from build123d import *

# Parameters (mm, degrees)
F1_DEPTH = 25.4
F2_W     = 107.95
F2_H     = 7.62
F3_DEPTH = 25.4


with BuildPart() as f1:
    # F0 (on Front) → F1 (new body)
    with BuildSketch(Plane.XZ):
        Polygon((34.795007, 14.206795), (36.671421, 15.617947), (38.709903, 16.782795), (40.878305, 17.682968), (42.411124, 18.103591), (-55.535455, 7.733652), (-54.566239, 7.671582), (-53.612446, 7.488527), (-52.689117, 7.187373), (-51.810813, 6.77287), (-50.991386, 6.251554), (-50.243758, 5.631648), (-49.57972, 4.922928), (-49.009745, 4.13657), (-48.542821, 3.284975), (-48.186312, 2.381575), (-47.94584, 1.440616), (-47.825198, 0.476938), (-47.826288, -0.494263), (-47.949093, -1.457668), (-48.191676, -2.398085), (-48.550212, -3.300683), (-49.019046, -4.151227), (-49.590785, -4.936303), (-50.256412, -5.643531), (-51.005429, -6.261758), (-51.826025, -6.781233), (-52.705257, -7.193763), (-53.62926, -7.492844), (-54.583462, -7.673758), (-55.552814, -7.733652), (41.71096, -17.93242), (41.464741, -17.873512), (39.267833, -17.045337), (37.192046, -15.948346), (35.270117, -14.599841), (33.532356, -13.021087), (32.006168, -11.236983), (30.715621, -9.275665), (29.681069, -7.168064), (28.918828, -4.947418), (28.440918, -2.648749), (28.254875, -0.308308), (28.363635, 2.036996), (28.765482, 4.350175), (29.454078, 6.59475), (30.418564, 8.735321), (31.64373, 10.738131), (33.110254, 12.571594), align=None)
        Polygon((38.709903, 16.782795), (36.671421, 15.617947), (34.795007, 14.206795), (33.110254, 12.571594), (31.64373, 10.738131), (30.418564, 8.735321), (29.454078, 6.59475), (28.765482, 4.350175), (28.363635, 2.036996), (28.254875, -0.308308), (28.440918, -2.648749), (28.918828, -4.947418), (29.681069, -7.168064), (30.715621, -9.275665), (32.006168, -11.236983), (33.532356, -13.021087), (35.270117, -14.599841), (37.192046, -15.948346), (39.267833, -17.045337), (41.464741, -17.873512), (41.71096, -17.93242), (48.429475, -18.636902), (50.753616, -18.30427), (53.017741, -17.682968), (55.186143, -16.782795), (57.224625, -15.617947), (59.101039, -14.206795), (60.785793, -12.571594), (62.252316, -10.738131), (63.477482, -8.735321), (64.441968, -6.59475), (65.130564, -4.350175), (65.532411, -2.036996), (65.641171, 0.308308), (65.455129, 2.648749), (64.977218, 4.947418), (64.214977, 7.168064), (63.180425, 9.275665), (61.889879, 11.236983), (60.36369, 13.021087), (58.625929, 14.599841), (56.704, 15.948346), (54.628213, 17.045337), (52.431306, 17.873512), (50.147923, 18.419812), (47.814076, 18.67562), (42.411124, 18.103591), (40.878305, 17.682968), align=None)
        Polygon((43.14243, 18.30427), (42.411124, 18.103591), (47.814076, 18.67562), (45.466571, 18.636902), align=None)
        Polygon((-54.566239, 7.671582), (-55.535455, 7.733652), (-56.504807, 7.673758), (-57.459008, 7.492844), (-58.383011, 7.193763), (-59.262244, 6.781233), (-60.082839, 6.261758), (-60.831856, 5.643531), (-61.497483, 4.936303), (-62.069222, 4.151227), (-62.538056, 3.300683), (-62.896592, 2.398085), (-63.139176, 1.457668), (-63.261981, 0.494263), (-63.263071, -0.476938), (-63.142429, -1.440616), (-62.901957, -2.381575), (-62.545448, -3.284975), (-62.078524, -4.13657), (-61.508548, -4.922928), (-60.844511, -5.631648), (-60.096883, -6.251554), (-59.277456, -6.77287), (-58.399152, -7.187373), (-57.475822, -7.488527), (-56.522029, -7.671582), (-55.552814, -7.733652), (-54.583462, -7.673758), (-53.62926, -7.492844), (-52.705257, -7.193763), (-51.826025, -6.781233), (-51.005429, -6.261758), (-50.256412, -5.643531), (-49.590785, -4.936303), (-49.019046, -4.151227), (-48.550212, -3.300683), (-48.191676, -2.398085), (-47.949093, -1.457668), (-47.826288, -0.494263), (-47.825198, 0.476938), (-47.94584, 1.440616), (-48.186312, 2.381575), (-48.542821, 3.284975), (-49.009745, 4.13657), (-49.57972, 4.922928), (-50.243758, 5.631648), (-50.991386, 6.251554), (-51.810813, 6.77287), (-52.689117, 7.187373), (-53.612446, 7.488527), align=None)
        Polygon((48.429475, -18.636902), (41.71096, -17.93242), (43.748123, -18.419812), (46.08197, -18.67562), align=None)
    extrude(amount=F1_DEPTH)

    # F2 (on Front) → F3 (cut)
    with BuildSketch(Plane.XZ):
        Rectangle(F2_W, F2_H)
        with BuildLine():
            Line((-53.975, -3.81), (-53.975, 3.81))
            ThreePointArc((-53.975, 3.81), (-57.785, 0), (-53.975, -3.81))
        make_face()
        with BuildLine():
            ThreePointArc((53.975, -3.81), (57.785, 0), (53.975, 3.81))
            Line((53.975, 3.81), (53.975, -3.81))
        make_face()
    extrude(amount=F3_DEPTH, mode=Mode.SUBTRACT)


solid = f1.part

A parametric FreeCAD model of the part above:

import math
import FreeCAD as App
import Part
import Sketcher
from FreeCAD import Vector
Q = App.Units.Quantity


def add_polygon(sketch, points):
    """Adds a closed chain of lines whose ends are joined by coincident constraints."""
    first, n = sketch.GeometryCount, len(points)
    for a, b in zip(points, points[1:] + points[:1]):
        sketch.addGeometry(Part.LineSegment(App.Vector(*a, 0), App.Vector(*b, 0)), False)
    for i in range(n):
        sketch.addConstraint(Sketcher.Constraint("Coincident", first + i, 2, first + (i + 1) % n, 1))

doc = App.newDocument("Part")
params = doc.addObject("Spreadsheet::Sheet", "Params")
for row, (alias, value) in enumerate([
    ("pad1_length", "1 in"),
    ("sketch2_radius", "0.15 in"),
    ("sketch2_width", "4.25 in"),
    ("pocket1_length", "1 in"),
], start=1):
    params.set(f"A{row}", alias)
    params.set(f"B{row}", "=" + value)
    params.setAlias(f"B{row}", alias)

body = doc.addObject("PartDesign::Body", "Body")

# Sketch on XZ plane
sketch1 = body.newObject("Sketcher::SketchObject", "Sketch")
sketch1.AttachmentSupport = (doc.getObject("XZ_Plane"), [""])
sketch1.MapMode = "FlatFace"
add_polygon(sketch1, [(42.411124, 18.103591), (-55.535455, 7.733652), (-56.504807, 7.673758), (-57.459008, 7.492844), (-58.383011, 7.193763), (-59.262244, 6.781233), (-60.082839, 6.261758), (-60.831856, 5.643531), (-61.497483, 4.936303), (-62.069222, 4.151227), (-62.538056, 3.300683), (-62.896592, 2.398085), (-63.139176, 1.457668), (-63.261981, 0.494263), (-63.263071, -0.476938), (-63.142429, -1.440616), (-62.901957, -2.381575), (-62.545448, -3.284975), (-62.078524, -4.13657), (-61.508548, -4.922928), (-60.844511, -5.631648), (-60.096883, -6.251554), (-59.277456, -6.77287), (-58.399152, -7.187373), (-57.475822, -7.488527), (-56.522029, -7.671582), (-55.552814, -7.733652), (41.71096, -17.93242), (43.748123, -18.419812), (46.08197, -18.67562), (48.429475, -18.636902), (50.753616, -18.30427), (53.017741, -17.682968), (55.186143, -16.782795), (57.224625, -15.617947), (59.101039, -14.206795), (60.785793, -12.571594), (62.252316, -10.738131), (63.477482, -8.735321), (64.441968, -6.59475), (65.130564, -4.350175), (65.532411, -2.036996), (65.641171, 0.308308), (65.455129, 2.648749), (64.977218, 4.947418), (64.214977, 7.168064), (63.180425, 9.275665), (61.889879, 11.236983), (60.36369, 13.021087), (58.625929, 14.599841), (56.704, 15.948346), (54.628213, 17.045337), (52.431306, 17.873512), (50.147923, 18.419812), (47.814076, 18.67562), (45.466571, 18.636902), (43.14243, 18.30427)])  # lines 0-56
sketch1.addConstraint([
    Sketcher.Constraint("DistanceX", 16, 2, 20, 2, Q("0.0964002 in")),
    Sketcher.Constraint("DistanceY", 31, 2, 33, 2, Q("0.0813 in")),
    Sketcher.Constraint("DistanceX", 31, 2, 34, 2, Q("0.2394999 in")),
    Sketcher.Constraint("Distance", 0, Q("98.494 mm")),
    Sketcher.Constraint("Distance", 1, Q("0.971201 mm")),
    Sketcher.Constraint("Distance", 2, Q("0.9712 mm")),
    Sketcher.Constraint("Distance", 3, Q("0.971201 mm")),
    Sketcher.Constraint("Distance", 4, Q("0.971201 mm")),
    Sketcher.Constraint("Distance", 5, Q("0.971201 mm")),
    Sketcher.Constraint("Distance", 6, Q("0.971201 mm")),
    Sketcher.Constraint("Distance", 7, Q("0.971201 mm")),
    Sketcher.Constraint("Distance", 8, Q("0.9712 mm")),
    Sketcher.Constraint("Distance", 9, Q("0.971201 mm")),
    Sketcher.Constraint("Distance", 10, Q("0.971201 mm")),
    Sketcher.Constraint("Distance", 11, Q("0.971201 mm")),
    Sketcher.Constraint("Distance", 12, Q("0.9712 mm")),
    Sketcher.Constraint("Distance", 13, Q("0.971202 mm")),
    Sketcher.Constraint("Distance", 14, Q("0.9712 mm")),
    Sketcher.Constraint("Distance", 15, Q("0.971201 mm")),
    Sketcher.Constraint("Distance", 16, Q("0.9712 mm")),
    Sketcher.Constraint("Distance", 17, Q("0.971201 mm")),
    Sketcher.Constraint("Distance", 18, Q("0.971201 mm")),
    Sketcher.Constraint("Distance", 19, Q("0.9712 mm")),
    Sketcher.Constraint("Distance", 20, Q("0.971201 mm")),
    Sketcher.Constraint("Distance", 21, Q("0.971201 mm")),
    Sketcher.Constraint("Distance", 22, Q("0.971201 mm")),
    Sketcher.Constraint("Distance", 23, Q("0.971201 mm")),
    Sketcher.Constraint("Distance", 24, Q("0.9712 mm")),
    Sketcher.Constraint("Distance", 25, Q("0.9712 mm")),
    Sketcher.Constraint("DistanceY", 29, 2, -1, 1, Q("18.636902 mm")),
    Sketcher.Constraint("DistanceX", -1, 1, 49, 2, Q("56.704 mm")),
    Sketcher.Constraint("DistanceY", -1, 1, 54, 2, Q("18.636902 mm")),
    Sketcher.Constraint("DistanceX", 2, 2, 1, 2, Q("0.954201 mm")),
    Sketcher.Constraint("DistanceY", 5, 2, 1, 2, Q("1.412 mm")),
    Sketcher.Constraint("DistanceX", 9, 2, 6, 2, Q("1.7062 mm")),
    Sketcher.Constraint("DistanceY", 14, 2, 10, 2, Q("3.838701 mm")),
    Sketcher.Constraint("DistanceY", 14, 2, 9, 2, Q("4.741299 mm")),
    Sketcher.Constraint("DistanceY", 16, 2, 15, 2, Q("0.9034 mm")),
    Sketcher.Constraint("DistanceX", 16, 2, 18, 2, Q("1.0369 mm")),
    Sketcher.Constraint("DistanceY", 21, 2, 17, 2, Q("2.6363 mm")),
    Sketcher.Constraint("DistanceY", 23, 2, 18, 2, Q("2.565599 mm")),
    Sketcher.Constraint("DistanceY", 25, 2, 20, 2, Q("1.482098 mm")),
    Sketcher.Constraint("DistanceY", 28, 2, 26, 2, Q("0.7432 mm")),
    Sketcher.Constraint("DistanceX", 24, 2, 28, 2, Q("102.603999 mm")),
    Sketcher.Constraint("DistanceY", 32, 2, 34, 2, Q("2.576 mm")),
    Sketcher.Constraint("DistanceY", 34, 2, 35, 2, Q("1.635201 mm")),
    Sketcher.Constraint("DistanceY", 38, 2, 42, 2, Q("9.243499 mm")),
    Sketcher.Constraint("DistanceY", 44, 2, 45, 2, Q("2.107601 mm")),
    Sketcher.Constraint("DistanceX", 46, 2, 44, 2, Q("2.325098 mm")),
    Sketcher.Constraint("DistanceY", 51, 2, 52, 2, Q("0.5463 mm")),
    Sketcher.Constraint("DistanceX", 56, 2, 52, 2, Q("7.736799 mm")),
    Sketcher.Constraint("Distance", 56, Q("0.758341 mm")),
    Sketcher.Constraint("DistanceY", -1, 1, 1, 2, Q("7.673758 mm")),
    Sketcher.Constraint("DistanceX", 3, 2, -1, 1, Q("58.383011 mm")),
    Sketcher.Constraint("DistanceX", 5, 2, -1, 1, Q("60.082839 mm")),
    Sketcher.Constraint("DistanceY", -1, 1, 6, 2, Q("5.643531 mm")),
    Sketcher.Constraint("DistanceX", 12, 2, -1, 1, Q("63.261981 mm")),
    Sketcher.Constraint("DistanceX", 13, 2, -1, 1, Q("63.263071 mm")),
    Sketcher.Constraint("DistanceX", 14, 2, -1, 1, Q("63.142429 mm")),
    Sketcher.Constraint("DistanceY", 17, 2, -1, 1, Q("4.13657 mm")),
    Sketcher.Constraint("DistanceX", 19, 2, -1, 1, Q("60.844511 mm")),
    Sketcher.Constraint("DistanceY", 19, 2, -1, 1, Q("5.631648 mm")),
    Sketcher.Constraint("DistanceX", 24, 2, -1, 1, Q("56.522029 mm")),
    Sketcher.Constraint("DistanceX", -1, 1, 26, 2, Q("41.71096 mm")),
    Sketcher.Constraint("DistanceY", 26, 2, -1, 1, Q("17.93242 mm")),
    Sketcher.Constraint("DistanceY", 30, 2, -1, 1, Q("18.30427 mm")),
    Sketcher.Constraint("DistanceX", -1, 1, 31, 2, Q("53.017741 mm")),
    Sketcher.Constraint("DistanceY", 36, 2, -1, 1, Q("10.738131 mm")),
    Sketcher.Constraint("DistanceY", 37, 2, -1, 1, Q("8.735321 mm")),
    Sketcher.Constraint("DistanceX", -1, 1, 38, 2, Q("64.441968 mm")),
    Sketcher.Constraint("DistanceY", 38, 2, -1, 1, Q("6.59475 mm")),
    Sketcher.Constraint("DistanceX", -1, 1, 40, 2, Q("65.532411 mm")),
    Sketcher.Constraint("DistanceX", -1, 1, 41, 2, Q("65.641171 mm")),
    Sketcher.Constraint("DistanceY", -1, 1, 41, 2, Q("0.308308 mm")),
    Sketcher.Constraint("DistanceX", -1, 1, 42, 2, Q("65.455129 mm")),
    Sketcher.Constraint("DistanceX", -1, 1, 46, 2, Q("61.889879 mm")),
    Sketcher.Constraint("DistanceX", -1, 1, 47, 2, Q("60.36369 mm")),
    Sketcher.Constraint("DistanceX", -1, 1, 48, 2, Q("58.625929 mm")),
    Sketcher.Constraint("DistanceY", -1, 1, 48, 2, Q("14.599841 mm")),
    Sketcher.Constraint("DistanceY", -1, 1, 53, 2, Q("18.67562 mm")),
    Sketcher.Constraint("DistanceX", -1, 1, 54, 2, Q("45.466571 mm")),
    Sketcher.Constraint("DistanceX", -1, 1, 55, 2, Q("43.14243 mm")),
    Sketcher.Constraint("DistanceY", -1, 1, 55, 2, Q("18.30427 mm")),
    Sketcher.Constraint("DistanceY", -1, 1, 56, 2, Q("18.103591 mm")),
    Sketcher.Constraint("DistanceY", 2, 2, 0, 2, Q("0.240808 mm")),
    Sketcher.Constraint("DistanceY", 7, 2, 6, 2, Q("0.707228 mm")),
    Sketcher.Constraint("DistanceX", 8, 2, 7, 2, Q("0.571739 mm")),
    Sketcher.Constraint("DistanceX", 20, 2, 22, 2, Q("1.697731 mm")),
    Sketcher.Constraint("DistanceY", 27, 2, 26, 2, Q("0.487392 mm")),
    Sketcher.Constraint("DistanceX", 24, 2, 27, 2, Q("100.270152 mm")),
    Sketcher.Constraint("DistanceX", 27, 2, 29, 2, Q("4.681352 mm")),
    Sketcher.Constraint("DistanceX", 29, 2, 30, 2, Q("2.324141 mm")),
    Sketcher.Constraint("DistanceY", 28, 2, 31, 2, Q("0.992652 mm")),
    Sketcher.Constraint("DistanceX", 29, 2, 32, 2, Q("6.756668 mm")),
    Sketcher.Constraint("DistanceY", 32, 2, 33, 2, Q("1.164848 mm")),
    Sketcher.Constraint("DistanceX", 30, 2, 33, 2, Q("6.471009 mm")),
    Sketcher.Constraint("DistanceX", 32, 2, 35, 2, Q("5.59965 mm")),
    Sketcher.Constraint("DistanceX", 33, 2, 36, 2, Q("5.027691 mm")),
    Sketcher.Constraint("DistanceX", 35, 2, 37, 2, Q("2.691689 mm")),
    Sketcher.Constraint("DistanceX", 36, 2, 39, 2, Q("2.878248 mm")),
    Sketcher.Constraint("DistanceY", 35, 2, 39, 2, Q("8.221419 mm")),
    Sketcher.Constraint("DistanceY", 39, 2, 40, 2, Q("2.313179 mm")),
    Sketcher.Constraint("DistanceX", 43, 2, 42, 2, Q("0.477911 mm")),
    Sketcher.Constraint("DistanceY", 42, 2, 43, 2, Q("2.298669 mm")),
    Sketcher.Constraint("DistanceY", 40, 2, 44, 2, Q("9.20506 mm")),
    Sketcher.Constraint("DistanceY", 45, 2, 46, 2, Q("1.961318 mm")),
    Sketcher.Constraint("DistanceY", 45, 2, 47, 2, Q("3.745422 mm")),
    Sketcher.Constraint("DistanceY", 47, 2, 49, 2, Q("2.927259 mm")),
    Sketcher.Constraint("DistanceY", 49, 2, 50, 2, Q("1.096991 mm")),
    Sketcher.Constraint("DistanceX", 50, 2, 45, 2, Q("8.552212 mm")),
    Sketcher.Constraint("DistanceY", 48, 2, 51, 2, Q("3.273671 mm")),
    Sketcher.Constraint("DistanceX", 52, 2, 50, 2, Q("4.48029 mm")),
    Sketcher.Constraint("DistanceX", 53, 2, 51, 2, Q("4.61723 mm")),
    Sketcher.Constraint("DistanceX", 56, 2, 53, 2, Q("5.402952 mm")),
])
pad1 = body.newObject("PartDesign::Pad", "Pad")
pad1.Profile = sketch1
pad1.setExpression("Length", "Params.pad1_length")

# Sketch on XZ plane
sketch2 = body.newObject("Sketcher::SketchObject", "Sketch001")
sketch2.AttachmentSupport = (doc.getObject("XZ_Plane"), [""])
sketch2.MapMode = "FlatFace"
sketch2.addGeometry([
    Part.LineSegment(Vector(-54, -3.8, 0), Vector(54, -3.8, 0)),
    Part.ArcOfCircle(Part.Circle(Vector(54, 0, 0), Vector(0, 0, 1), 3.8), math.radians(-90), math.radians(90)),
    Part.LineSegment(Vector(54, 3.8, 0), Vector(-54, 3.8, 0)),
    Part.ArcOfCircle(Part.Circle(Vector(-54, 0, 0), Vector(0, 0, 1), 3.8), math.radians(90), math.radians(270)),
], False)
sketch2.addConstraint([
    Sketcher.Constraint("Tangent", 0, 2, 1, 1),
    Sketcher.Constraint("Tangent", 1, 2, 2, 1),
    Sketcher.Constraint("Tangent", 2, 2, 3, 1),
    Sketcher.Constraint("Tangent", 3, 2, 0, 1),
    Sketcher.Constraint("Horizontal", 0),
    Sketcher.Constraint("Horizontal", 2),
    Sketcher.Constraint("Symmetric", 1, 3, 3, 3, -1, 1),
    Sketcher.Constraint("Radius", 1, Q("0.15 in")),
    Sketcher.Constraint("DistanceX", 0, 1, 0, 2, Q("4.25 in")),
])
sketch2.setExpression("Constraints[7]", "Params.sketch2_radius")
sketch2.setExpression("Constraints[8]", "Params.sketch2_width")
pocket1 = body.newObject("PartDesign::Pocket", "Pocket")
pocket1.Profile = sketch2
pocket1.setExpression("Length", "Params.pocket1_length")
pocket1.Reversed = True

doc.recompute()
